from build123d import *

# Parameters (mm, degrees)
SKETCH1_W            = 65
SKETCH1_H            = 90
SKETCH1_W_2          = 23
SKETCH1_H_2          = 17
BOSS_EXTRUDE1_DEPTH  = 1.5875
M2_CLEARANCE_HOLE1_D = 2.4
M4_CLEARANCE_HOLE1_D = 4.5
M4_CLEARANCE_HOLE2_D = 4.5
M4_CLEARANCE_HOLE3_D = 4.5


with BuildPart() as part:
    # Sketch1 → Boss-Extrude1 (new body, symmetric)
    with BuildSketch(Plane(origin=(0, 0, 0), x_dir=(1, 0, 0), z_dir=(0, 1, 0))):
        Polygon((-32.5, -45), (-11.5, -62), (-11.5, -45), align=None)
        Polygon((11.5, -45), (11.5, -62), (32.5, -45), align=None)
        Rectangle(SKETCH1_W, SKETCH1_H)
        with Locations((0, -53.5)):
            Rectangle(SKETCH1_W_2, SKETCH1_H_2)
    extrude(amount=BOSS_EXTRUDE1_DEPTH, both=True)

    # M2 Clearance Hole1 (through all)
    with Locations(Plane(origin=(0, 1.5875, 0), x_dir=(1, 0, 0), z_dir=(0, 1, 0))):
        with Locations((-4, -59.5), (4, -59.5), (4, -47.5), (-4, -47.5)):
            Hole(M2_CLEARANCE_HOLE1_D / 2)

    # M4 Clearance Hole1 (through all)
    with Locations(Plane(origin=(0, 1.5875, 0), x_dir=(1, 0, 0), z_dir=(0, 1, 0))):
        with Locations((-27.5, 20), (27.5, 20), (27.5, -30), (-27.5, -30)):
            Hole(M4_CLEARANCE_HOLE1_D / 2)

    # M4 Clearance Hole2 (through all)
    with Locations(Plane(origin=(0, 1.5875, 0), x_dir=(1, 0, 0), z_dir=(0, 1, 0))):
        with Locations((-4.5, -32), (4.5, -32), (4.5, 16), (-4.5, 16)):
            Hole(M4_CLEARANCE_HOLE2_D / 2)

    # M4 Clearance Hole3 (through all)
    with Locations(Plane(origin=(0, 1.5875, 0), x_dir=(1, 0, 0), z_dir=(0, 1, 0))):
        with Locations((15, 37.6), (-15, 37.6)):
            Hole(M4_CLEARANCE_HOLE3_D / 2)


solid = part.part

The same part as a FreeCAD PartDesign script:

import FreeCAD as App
import Part
import Sketcher

V = App.Vector
Q = App.Units.Quantity


def add_polygon(sketch, points):
    """Adds a closed chain of lines whose ends are joined by coincident constraints."""
    first, n = sketch.GeometryCount, len(points)
    for a, b in zip(points, points[1:] + points[:1]):
        sketch.addGeometry(Part.LineSegment(App.Vector(*a, 0), App.Vector(*b, 0)), False)
    for i in range(n):
        sketch.addConstraint(Sketcher.Constraint("Coincident", first + i, 2, first + (i + 1) % n, 1))

doc = App.newDocument("Part")
body = doc.addObject("PartDesign::Body", "Body")

sketch1 = doc.addObject("Sketcher::SketchObject", "Sketch")
body.addObject(sketch1)
sketch1.AttachmentSupport = (doc.XZ_Plane, [""])
sketch1.MapMode = "FlatFace"
add_polygon(sketch1, [(-32, 45), (-12, 62), (12, 62), (32, 45), (32, -45), (-32, -45)])
sketch1.addConstraint(Sketcher.Constraint("Horizontal", 1))
sketch1.addConstraint(Sketcher.Constraint("Vertical", 3))
sketch1.addConstraint(Sketcher.Constraint("Horizontal", 4))
sketch1.addConstraint(Sketcher.Constraint("Vertical", 5))
sketch1.addConstraint(Sketcher.Constraint("Symmetric", 2, 2, 4, 2, -1, 1))
sketch1.addConstraint(Sketcher.Constraint("Horizontal", 2, 2, 5, 2))
sketch1.addConstraint(Sketcher.Constraint("Equal", 0, 2))
sketch1.addConstraint(Sketcher.Constraint("DistanceX", 1, 1, 1, 2, Q("23 mm")))
sketch1.addConstraint(Sketcher.Constraint("DistanceX", 4, 2, 4, 1, Q("65 mm")))
sketch1.addConstraint(Sketcher.Constraint("DistanceY", 3, 2, 3, 1, Q("90 mm")))
sketch1.addConstraint(Sketcher.Constraint("DistanceY", -1, 1, 0, 2, Q("62 mm")))
pad1 = doc.addObject("PartDesign::Pad", "Pad")
body.addObject(pad1)
pad1.Profile = sketch1
pad1.Length = 3.175
pad1.Midplane = True

sketch2 = doc.addObject("Sketcher::SketchObject", "Sketch001")
body.addObject(sketch2)
sketch2.AttachmentSupport = (doc.XZ_Plane, [""])
sketch2.MapMode = "FlatFace"
sketch2.AttachmentOffset = App.Placement(V(0, 0, -1.5875), App.Rotation())
sketch2.addGeometry(Part.Circle(V(-4, 59.5, 0), V(0, 0, 1), 1.2), False)
sketch2.addGeometry(Part.Circle(V(4, 59.5, 0), V(0, 0, 1), 1.2), False)
sketch2.addGeometry(Part.Circle(V(4, 47.5, 0), V(0, 0, 1), 1.2), False)
sketch2.addGeometry(Part.Circle(V(-4, 47.5, 0), V(0, 0, 1), 1.2), False)
sketch2.addConstraint(Sketcher.Constraint("Equal", 0, 1))
sketch2.addConstraint(Sketcher.Constraint("Equal", 1, 2))
sketch2.addConstraint(Sketcher.Constraint("Equal", 2, 3))
sketch2.addConstraint(Sketcher.Constraint("Symmetric", 0, 3, 1, 3, -2))
sketch2.addConstraint(Sketcher.Constraint("Symmetric", 2, 3, 3, 3, -2))
sketch2.addConstraint(Sketcher.Constraint("Vertical", 1, 3, 2, 3))
sketch2.addConstraint(Sketcher.Constraint("Diameter", 0, Q("2.4 mm")))
sketch2.addConstraint(Sketcher.Constraint("DistanceX", 0, 3, -1, 1, Q("4 mm")))
sketch2.addConstraint(Sketcher.Constraint("DistanceY", 2, 3, 1, 3, Q("12 mm")))
sketch2.addConstraint(Sketcher.Constraint("DistanceY", -1, 1, 0, 3, Q("59.5 mm")))
doc.recompute()
hole = doc.addObject("PartDesign::Hole", "Hole")
body.addObject(hole)
hole.Profile = sketch2
hole.ThreadType = "None"
hole.Diameter = 2.4
hole.DepthType = "ThroughAll"
hole.Reversed = True

sketch3 = doc.addObject("Sketcher::SketchObject", "Sketch002")
body.addObject(sketch3)
sketch3.AttachmentSupport = (doc.XZ_Plane, [""])
sketch3.MapMode = "FlatFace"
sketch3.AttachmentOffset = App.Placement(V(0, 0, -1.5875), App.Rotation())
sketch3.addGeometry(Part.Circle(V(-27.5, -20, 0), V(0, 0, 1), 2.2), False)
sketch3.addGeometry(Part.Circle(V(27.5, -20, 0), V(0, 0, 1), 2.2), False)
sketch3.addGeometry(Part.Circle(V(27.5, 30, 0), V(0, 0, 1), 2.2), False)
sketch3.addGeometry(Part.Circle(V(-27.5, 30, 0), V(0, 0, 1), 2.2), False)
sketch3.addConstraint(Sketcher.Constraint("Equal", 0, 1))
sketch3.addConstraint(Sketcher.Constraint("Equal", 1, 2))
sketch3.addConstraint(Sketcher.Constraint("Equal", 2, 3))
sketch3.addConstraint(Sketcher.Constraint("Symmetric", 0, 3, 1, 3, -2))
sketch3.addConstraint(Sketcher.Constraint("Symmetric", 2, 3, 3, 3, -2))
sketch3.addConstraint(Sketcher.Constraint("Vertical", 1, 3, 2, 3))
sketch3.addConstraint(Sketcher.Constraint("Diameter", 0, Q("4.5 mm")))
sketch3.addConstraint(Sketcher.Constraint("DistanceY", 0, 3, -1, 1, Q("20 mm")))
sketch3.addConstraint(Sketcher.Constraint("DistanceY", -1, 1, 2, 3, Q("30 mm")))
sketch3.addConstraint(Sketcher.Constraint("DistanceX", 0, 3, 1, 3, Q("55 mm")))
doc.recompute()
hole2 = doc.addObject("PartDesign::Hole", "Hole001")
body.addObject(hole2)
hole2.Profile = sketch3
hole2.ThreadType = "None"
hole2.Diameter = 4.5
hole2.DepthType = "ThroughAll"
hole2.Reversed = True

sketch4 = doc.addObject("Sketcher::SketchObject", "Sketch003")
body.addObject(sketch4)
sketch4.AttachmentSupport = (doc.XZ_Plane, [""])
sketch4.MapMode = "FlatFace"
sketch4.AttachmentOffset = App.Placement(V(0, 0, -1.5875), App.Rotation())
sketch4.addGeometry(Part.Circle(V(-4.5, 32, 0), V(0, 0, 1), 2.2), False)
sketch4.addGeometry(Part.Circle(V(4.5, 32, 0), V(0, 0, 1), 2.2), False)
sketch4.addGeometry(Part.Circle(V(4.5, -16, 0), V(0, 0, 1), 2.2), False)
sketch4.addGeometry(Part.Circle(V(-4.5, -16, 0), V(0, 0, 1), 2.2), False)
sketch4.addConstraint(Sketcher.Constraint("Equal", 0, 1))
sketch4.addConstraint(Sketcher.Constraint("Equal", 1, 2))
sketch4.addConstraint(Sketcher.Constraint("Equal", 2, 3))
sketch4.addConstraint(Sketcher.Constraint("Symmetric", 0, 3, 1, 3, -2))
sketch4.addConstraint(Sketcher.Constraint("Symmetric", 2, 3, 3, 3, -2))
sketch4.addConstraint(Sketcher.Constraint("Vertical", 1, 3, 2, 3))
sketch4.addConstraint(Sketcher.Constraint("Diameter", 0, Q("4.5 mm")))
sketch4.addConstraint(Sketcher.Constraint("DistanceY", -1, 1, 0, 3, Q("32 mm")))
sketch4.addConstraint(Sketcher.Constraint("DistanceY", 2, 3, -1, 1, Q("16 mm")))
sketch4.addConstraint(Sketcher.Constraint("DistanceX", 0, 3, 1, 3, Q("9 mm")))
doc.recompute()
hole3 = doc.addObject("PartDesign::Hole", "Hole002")
body.addObject(hole3)
hole3.Profile = sketch4
hole3.ThreadType = "None"
hole3.Diameter = 4.5
hole3.DepthType = "ThroughAll"
hole3.Reversed = True

sketch5 = doc.addObject("Sketcher::SketchObject", "Sketch004")
body.addObject(sketch5)
sketch5.AttachmentSupport = (doc.XZ_Plane, [""])
sketch5.MapMode = "FlatFace"
sketch5.AttachmentOffset = App.Placement(V(0, 0, -1.5875), App.Rotation())
sketch5.addGeometry(Part.Circle(V(15, -37.6, 0), V(0, 0, 1), 2.2), False)
sketch5.addGeometry(Part.Circle(V(-15, -37.6, 0), V(0, 0, 1), 2.2), False)
sketch5.addConstraint(Sketcher.Constraint("Equal", 0, 1))
sketch5.addConstraint(Sketcher.Constraint("Symmetric", 0, 3, 1, 3, -2))
sketch5.addConstraint(Sketcher.Constraint("Diameter", 0, Q("4.5 mm")))
sketch5.addConstraint(Sketcher.Constraint("DistanceX", -1, 1, 0, 3, Q("15 mm")))
sketch5.addConstraint(Sketcher.Constraint("DistanceY", 0, 3, -1, 1, Q("37.6 mm")))
doc.recompute()
hole4 = doc.addObject("PartDesign::Hole", "Hole003")
body.addObject(hole4)
hole4.Profile = sketch5
hole4.ThreadType = "None"
hole4.Diameter = 4.5
hole4.DepthType = "ThroughAll"
hole4.Reversed = True

doc.recompute()
